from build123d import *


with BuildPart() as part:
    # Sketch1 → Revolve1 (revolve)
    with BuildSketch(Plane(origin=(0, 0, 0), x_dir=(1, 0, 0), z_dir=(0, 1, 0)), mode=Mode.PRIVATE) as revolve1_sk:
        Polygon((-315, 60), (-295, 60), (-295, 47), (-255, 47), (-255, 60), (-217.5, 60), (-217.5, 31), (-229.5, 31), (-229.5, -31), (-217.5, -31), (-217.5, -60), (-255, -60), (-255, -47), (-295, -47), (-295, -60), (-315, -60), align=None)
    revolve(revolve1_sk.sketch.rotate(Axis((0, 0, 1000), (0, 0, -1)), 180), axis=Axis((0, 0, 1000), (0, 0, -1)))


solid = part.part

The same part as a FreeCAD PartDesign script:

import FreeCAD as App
import Part
import Sketcher
from FreeCAD import Vector
Q = App.Units.Quantity


def add_polygon(sketch, points):
    """Adds a closed chain of lines whose ends are joined by coincident constraints."""
    first, n = sketch.GeometryCount, len(points)
    for a, b in zip(points, points[1:] + points[:1]):
        sketch.addGeometry(Part.LineSegment(App.Vector(*a, 0), App.Vector(*b, 0)), False)
    for i in range(n):
        sketch.addConstraint(Sketcher.Constraint("Coincident", first + i, 2, first + (i + 1) % n, 1))

doc = App.newDocument("Part")
body = doc.addObject("PartDesign::Body", "Body")

# Sketch on XZ plane
sketch1 = doc.addObject("Sketcher::SketchObject", "Sketch")
body.addObject(sketch1)
sketch1.AttachmentSupport = (doc.XZ_Plane, [""])
sketch1.MapMode = "FlatFace"
add_polygon(sketch1, [(-295, -60), (-315, -60), (-315, 60), (-295, 60), (-295, 47), (-255, 47), (-255, 60), (-218, 60), (-218, 31), (-230, 31), (-230, -31), (-218, -31), (-218, -60), (-255, -60), (-255, -47), (-295, -47)])  # lines 0-15
sketch1.addConstraint(Sketcher.Constraint("Horizontal", 0))
sketch1.addConstraint(Sketcher.Constraint("Vertical", 1))
sketch1.addConstraint(Sketcher.Constraint("Horizontal", 2))
sketch1.addConstraint(Sketcher.Constraint("Vertical", 3))
sketch1.addConstraint(Sketcher.Constraint("Horizontal", 4))
sketch1.addConstraint(Sketcher.Constraint("Vertical", 5))
sketch1.addConstraint(Sketcher.Constraint("Horizontal", 6))
sketch1.addConstraint(Sketcher.Constraint("Vertical", 7))
sketch1.addConstraint(Sketcher.Constraint("Horizontal", 8))
sketch1.addConstraint(Sketcher.Constraint("Vertical", 9))
sketch1.addConstraint(Sketcher.Constraint("Horizontal", 10))
sketch1.addConstraint(Sketcher.Constraint("Vertical", 11))
sketch1.addConstraint(Sketcher.Constraint("Horizontal", 12))
sketch1.addConstraint(Sketcher.Constraint("Vertical", 13))
sketch1.addConstraint(Sketcher.Constraint("Horizontal", 14))
sketch1.addConstraint(Sketcher.Constraint("Vertical", 15))
sketch1.addConstraint(Sketcher.Constraint("Symmetric", 7, 2, 10, 2, -1))
sketch1.addConstraint(Sketcher.Constraint("Symmetric", 5, 2, 12, 2, -1))
sketch1.addConstraint(Sketcher.Constraint("Symmetric", 3, 2, 14, 2, -1))
sketch1.addConstraint(Sketcher.Constraint("Horizontal", 2, 2, 5, 2))
sketch1.addConstraint(Sketcher.Constraint("Horizontal", 0, 2, 11, 2))
sketch1.addConstraint(Sketcher.Constraint("DistanceX", 0, 2, 0, 1, Q("20 mm")))
sketch1.addConstraint(Sketcher.Constraint("DistanceX", 4, 1, 4, 2, Q("40 mm")))
sketch1.addConstraint(Sketcher.Constraint("DistanceX", 8, 2, 8, 1, Q("12 mm")))
sketch1.addConstraint(Sketcher.Constraint("DistanceY", 1, 1, 1, 2, Q("120 mm")))
sketch1.addConstraint(Sketcher.Constraint("DistanceY", 3, 2, 3, 1, Q("13 mm")))
sketch1.addConstraint(Sketcher.Constraint("DistanceY", 7, 2, 7, 1, Q("29 mm")))
sketch1.addConstraint(Sketcher.Constraint("DistanceX", 6, 1, 6, 2, Q("37.5 mm")))
sketch1.addConstraint(Sketcher.Constraint("DistanceX", 0, 2, -1, 1, Q("315 mm")))
revolution = doc.addObject("PartDesign::Revolution", "Revolution")
body.addObject(revolution)
revolution.Profile = sketch1
revolution.ReferenceAxis = (sketch1, ["V_Axis"])
revolution.Angle = 360

doc.recompute()
